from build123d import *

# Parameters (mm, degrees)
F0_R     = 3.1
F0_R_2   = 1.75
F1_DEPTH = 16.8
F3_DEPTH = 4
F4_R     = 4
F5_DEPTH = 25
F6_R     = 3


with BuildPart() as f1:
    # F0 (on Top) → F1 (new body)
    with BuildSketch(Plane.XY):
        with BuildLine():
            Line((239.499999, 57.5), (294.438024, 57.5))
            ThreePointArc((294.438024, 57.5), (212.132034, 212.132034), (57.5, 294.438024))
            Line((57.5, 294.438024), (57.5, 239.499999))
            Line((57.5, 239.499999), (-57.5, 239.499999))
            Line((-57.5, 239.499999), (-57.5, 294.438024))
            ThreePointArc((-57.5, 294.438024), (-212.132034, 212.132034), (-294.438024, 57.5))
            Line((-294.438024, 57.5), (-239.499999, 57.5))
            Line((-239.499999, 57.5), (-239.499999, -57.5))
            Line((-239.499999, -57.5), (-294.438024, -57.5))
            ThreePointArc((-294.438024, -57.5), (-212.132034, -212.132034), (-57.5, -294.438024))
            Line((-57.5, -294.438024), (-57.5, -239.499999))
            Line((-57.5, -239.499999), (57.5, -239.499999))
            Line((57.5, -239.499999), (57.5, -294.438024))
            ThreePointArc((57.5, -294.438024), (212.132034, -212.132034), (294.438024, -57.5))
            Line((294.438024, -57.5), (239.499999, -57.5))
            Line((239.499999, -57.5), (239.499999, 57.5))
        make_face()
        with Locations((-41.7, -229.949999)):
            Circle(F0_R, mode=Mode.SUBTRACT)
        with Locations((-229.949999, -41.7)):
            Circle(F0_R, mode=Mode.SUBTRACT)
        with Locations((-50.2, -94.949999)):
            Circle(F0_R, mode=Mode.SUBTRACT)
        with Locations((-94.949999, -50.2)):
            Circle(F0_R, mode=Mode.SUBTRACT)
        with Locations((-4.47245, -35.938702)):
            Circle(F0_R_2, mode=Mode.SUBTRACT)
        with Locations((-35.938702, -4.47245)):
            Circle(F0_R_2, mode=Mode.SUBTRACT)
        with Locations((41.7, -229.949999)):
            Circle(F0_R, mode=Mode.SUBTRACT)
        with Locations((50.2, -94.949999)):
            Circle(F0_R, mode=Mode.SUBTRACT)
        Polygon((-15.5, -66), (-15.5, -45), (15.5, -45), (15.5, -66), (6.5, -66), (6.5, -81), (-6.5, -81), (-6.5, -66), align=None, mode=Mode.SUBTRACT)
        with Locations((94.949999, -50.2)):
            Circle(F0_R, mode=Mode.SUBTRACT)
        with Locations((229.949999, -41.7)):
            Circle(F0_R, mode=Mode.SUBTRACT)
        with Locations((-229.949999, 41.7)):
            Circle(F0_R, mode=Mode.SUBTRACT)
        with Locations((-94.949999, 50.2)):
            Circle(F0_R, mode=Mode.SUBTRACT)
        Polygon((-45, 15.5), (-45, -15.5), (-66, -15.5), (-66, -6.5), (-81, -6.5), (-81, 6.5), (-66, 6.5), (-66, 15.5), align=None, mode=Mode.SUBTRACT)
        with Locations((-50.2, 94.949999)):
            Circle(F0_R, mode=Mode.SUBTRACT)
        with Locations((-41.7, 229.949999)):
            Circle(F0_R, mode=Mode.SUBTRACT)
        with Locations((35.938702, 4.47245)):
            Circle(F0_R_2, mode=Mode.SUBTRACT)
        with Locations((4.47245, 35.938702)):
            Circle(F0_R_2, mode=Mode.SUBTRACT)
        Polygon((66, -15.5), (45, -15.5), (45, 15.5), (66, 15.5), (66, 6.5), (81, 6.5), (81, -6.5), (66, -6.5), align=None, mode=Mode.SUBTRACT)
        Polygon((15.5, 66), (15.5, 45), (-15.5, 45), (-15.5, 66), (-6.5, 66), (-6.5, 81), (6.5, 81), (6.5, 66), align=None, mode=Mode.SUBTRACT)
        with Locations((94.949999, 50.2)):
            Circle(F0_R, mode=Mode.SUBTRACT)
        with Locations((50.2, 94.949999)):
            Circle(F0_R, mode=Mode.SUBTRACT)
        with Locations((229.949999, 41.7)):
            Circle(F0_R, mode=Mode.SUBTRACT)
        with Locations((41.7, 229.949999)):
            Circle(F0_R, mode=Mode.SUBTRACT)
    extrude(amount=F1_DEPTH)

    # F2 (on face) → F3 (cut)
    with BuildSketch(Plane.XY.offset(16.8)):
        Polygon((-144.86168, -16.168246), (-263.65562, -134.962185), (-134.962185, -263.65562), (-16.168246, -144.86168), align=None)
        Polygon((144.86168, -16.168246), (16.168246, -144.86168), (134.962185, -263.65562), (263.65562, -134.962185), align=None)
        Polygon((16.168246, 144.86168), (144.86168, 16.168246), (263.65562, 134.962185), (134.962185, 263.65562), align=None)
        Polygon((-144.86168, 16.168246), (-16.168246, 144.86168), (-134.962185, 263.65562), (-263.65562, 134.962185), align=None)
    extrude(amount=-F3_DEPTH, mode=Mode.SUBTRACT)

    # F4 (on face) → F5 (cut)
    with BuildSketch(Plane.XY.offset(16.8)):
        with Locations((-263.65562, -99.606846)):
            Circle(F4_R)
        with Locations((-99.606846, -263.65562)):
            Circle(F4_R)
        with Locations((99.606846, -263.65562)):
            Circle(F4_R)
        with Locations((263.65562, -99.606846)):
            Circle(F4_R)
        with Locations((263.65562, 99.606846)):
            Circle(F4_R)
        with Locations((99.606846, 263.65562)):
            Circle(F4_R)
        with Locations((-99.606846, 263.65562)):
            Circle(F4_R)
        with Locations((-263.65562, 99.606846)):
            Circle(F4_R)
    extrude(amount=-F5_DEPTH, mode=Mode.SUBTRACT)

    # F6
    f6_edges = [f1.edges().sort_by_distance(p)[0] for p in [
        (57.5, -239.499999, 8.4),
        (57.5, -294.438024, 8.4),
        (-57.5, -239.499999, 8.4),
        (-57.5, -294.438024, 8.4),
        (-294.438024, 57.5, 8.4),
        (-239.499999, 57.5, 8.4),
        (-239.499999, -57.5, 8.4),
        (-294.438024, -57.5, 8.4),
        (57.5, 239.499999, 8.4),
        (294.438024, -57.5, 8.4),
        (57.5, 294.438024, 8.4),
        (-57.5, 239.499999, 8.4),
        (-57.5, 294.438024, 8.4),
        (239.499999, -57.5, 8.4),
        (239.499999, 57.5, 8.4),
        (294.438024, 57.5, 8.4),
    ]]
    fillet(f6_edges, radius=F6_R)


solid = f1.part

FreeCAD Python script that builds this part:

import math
import FreeCAD as App
import Part
import Sketcher

V = App.Vector


def edges_at(feature, points):
    """Names of the edges that pass closest to the given points."""
    edges = feature.Shape.Edges
    near = lambda p: min(range(len(edges)), key=lambda i: edges[i].distToShape(Part.Vertex(*p))[0])
    return sorted({f"Edge{near(p) + 1}" for p in points})


def add_polygon(sketch, points):
    """Adds a closed chain of lines whose ends are joined by coincident constraints."""
    first, n = sketch.GeometryCount, len(points)
    for a, b in zip(points, points[1:] + points[:1]):
        sketch.addGeometry(Part.LineSegment(App.Vector(*a, 0), App.Vector(*b, 0)), False)
    for i in range(n):
        sketch.addConstraint(Sketcher.Constraint("Coincident", first + i, 2, first + (i + 1) % n, 1))

doc = App.newDocument("Part")
params = doc.addObject("Spreadsheet::Sheet", "Params")
for row, (alias, value) in enumerate([
    ("sketch1_diameter", "6.2 mm"),
    ("sketch1_diameter2", "3.5 mm"),
    ("sketch1_width", "115 mm"),
    ("sketch1_width2", "9 mm"),
    ("sketch1_width3", "31 mm"),
    ("pad1_length", "16.8 mm"),
    ("sketch2_length", "168 mm"),
    ("sketch2_length2", "182.000001 mm"),
    ("pocket1_length", "4 mm"),
    ("sketch3_diameter", "8 mm"),
    ("pocket2_length", "25 mm"),
    ("fillet_radius", "3 mm"),
], start=1):
    params.set(f"A{row}", alias)
    params.set(f"B{row}", "=" + value)
    params.setAlias(f"B{row}", alias)

body = doc.addObject("PartDesign::Body", "Body")

# Sketch on XY plane
sketch1 = body.newObject("Sketcher::SketchObject", "Sketch")
sketch1.AttachmentSupport = (doc.getObject("XY_Plane"), [""])
sketch1.MapMode = "FlatFace"
sketch1.addGeometry(Part.LineSegment(V(239.499999, 57.5, 0), V(294.438024, 57.5, 0)), False)  # 0
sketch1.addGeometry(Part.ArcOfCircle(Part.Circle(V(-0.000002, -0.000002, 0), V(0, 0, 1), 300.000002), math.radians(11.050065), math.radians(78.949935)), False)  # 1
sketch1.addGeometry(Part.LineSegment(V(57.5, 294.438024, 0), V(57.5, 239.499999, 0)), False)  # 2
sketch1.addGeometry(Part.LineSegment(V(57.5, 239.499999, 0), V(-57.5, 239.499999, 0)), False)  # 3
sketch1.addGeometry(Part.LineSegment(V(-57.5, 239.499999, 0), V(-57.5, 294.438024, 0)), False)  # 4
sketch1.addGeometry(Part.ArcOfCircle(Part.Circle(V(0.000002, -0.000002, 0), V(0, 0, 1), 300.000002), math.radians(101.050065), math.radians(168.949935)), False)  # 5
sketch1.addGeometry(Part.LineSegment(V(-294.438024, 57.5, 0), V(-239.499999, 57.5, 0)), False)  # 6
sketch1.addGeometry(Part.LineSegment(V(-239.499999, 57.5, 0), V(-239.499999, -57.5, 0)), False)  # 7
sketch1.addGeometry(Part.LineSegment(V(-239.499999, -57.5, 0), V(-294.438024, -57.5, 0)), False)  # 8
sketch1.addGeometry(Part.ArcOfCircle(Part.Circle(V(0.000002, 0.000002, 0), V(0, 0, 1), 300.000002), math.radians(-168.949935), math.radians(-101.050065)), False)  # 9
sketch1.addGeometry(Part.LineSegment(V(-57.5, -294.438024, 0), V(-57.5, -239.499999, 0)), False)  # 10
sketch1.addGeometry(Part.LineSegment(V(-57.5, -239.499999, 0), V(57.5, -239.499999, 0)), False)  # 11
sketch1.addGeometry(Part.LineSegment(V(57.5, -239.499999, 0), V(57.5, -294.438024, 0)), False)  # 12
sketch1.addGeometry(Part.ArcOfCircle(Part.Circle(V(-0.000002, 0.000002, 0), V(0, 0, 1), 300.000002), math.radians(-78.949935), math.radians(-11.050065)), False)  # 13
sketch1.addGeometry(Part.LineSegment(V(294.438024, -57.5, 0), V(239.499999, -57.5, 0)), False)  # 14
sketch1.addGeometry(Part.LineSegment(V(239.499999, -57.5, 0), V(239.499999, 57.5, 0)), False)  # 15
sketch1.addGeometry(Part.Circle(V(-41.7, -229.949999, 0), V(0, 0, 1), 3.1), False)  # 16
sketch1.addGeometry(Part.Circle(V(-229.949999, -41.7, 0), V(0, 0, 1), 3.1), False)  # 17
sketch1.addGeometry(Part.Circle(V(-50.2, -94.949999, 0), V(0, 0, 1), 3.1), False)  # 18
sketch1.addGeometry(Part.Circle(V(-94.949999, -50.2, 0), V(0, 0, 1), 3.1), False)  # 19
sketch1.addGeometry(Part.Circle(V(-4.47245, -35.938702, 0), V(0, 0, 1), 1.75), False)  # 20
sketch1.addGeometry(Part.Circle(V(-35.938702, -4.47245, 0), V(0, 0, 1), 1.75), False)  # 21
sketch1.addGeometry(Part.Circle(V(41.7, -229.949999, 0), V(0, 0, 1), 3.1), False)  # 22
sketch1.addGeometry(Part.Circle(V(50.2, -94.949999, 0), V(0, 0, 1), 3.1), False)  # 23
add_polygon(sketch1, [(-6.5, -66), (-15.5, -66), (-15.5, -45), (15.5, -45), (15.5, -66), (6.5, -66), (6.5, -81), (-6.5, -81)])  # lines 24-31
sketch1.addGeometry(Part.Circle(V(94.949999, -50.2, 0), V(0, 0, 1), 3.1), False)  # 32
sketch1.addGeometry(Part.Circle(V(229.949999, -41.7, 0), V(0, 0, 1), 3.1), False)  # 33
sketch1.addGeometry(Part.Circle(V(-229.949999, 41.7, 0), V(0, 0, 1), 3.1), False)  # 34
add_polygon(sketch1, [(-66, 15.5), (-45, 15.5), (-45, -15.5), (-66, -15.5), (-66, -6.5), (-81, -6.5), (-81, 6.5), (-66, 6.5)])  # lines 35-42
sketch1.addGeometry(Part.Circle(V(-94.949999, 50.2, 0), V(0, 0, 1), 3.1), False)  # 43
sketch1.addGeometry(Part.Circle(V(-50.2, 94.949999, 0), V(0, 0, 1), 3.1), False)  # 44
sketch1.addGeometry(Part.Circle(V(-41.7, 229.949999, 0), V(0, 0, 1), 3.1), False)  # 45
sketch1.addGeometry(Part.Circle(V(35.938702, 4.47245, 0), V(0, 0, 1), 1.75), False)  # 46
sketch1.addGeometry(Part.Circle(V(4.47245, 35.938702, 0), V(0, 0, 1), 1.75), False)  # 47
add_polygon(sketch1, [(66, -6.5), (66, -15.5), (45, -15.5), (45, 15.5), (66, 15.5), (66, 6.5), (81, 6.5), (81, -6.5)])  # lines 48-55
sketch1.addGeometry(Part.Circle(V(94.949999, 50.2, 0), V(0, 0, 1), 3.1), False)  # 56
add_polygon(sketch1, [(6.5, 66), (15.5, 66), (15.5, 45), (-15.5, 45), (-15.5, 66), (-6.5, 66), (-6.5, 81), (6.5, 81)])  # lines 57-64
sketch1.addGeometry(Part.Circle(V(50.2, 94.949999, 0), V(0, 0, 1), 3.1), False)  # 65
sketch1.addGeometry(Part.Circle(V(229.949999, 41.7, 0), V(0, 0, 1), 3.1), False)  # 66
sketch1.addGeometry(Part.Circle(V(41.7, 229.949999, 0), V(0, 0, 1), 3.1), False)  # 67
sketch1.addConstraint([
    Sketcher.Constraint("Coincident", 0, 2, 1, 1),
    Sketcher.Constraint("Coincident", 1, 2, 2, 1),
    Sketcher.Constraint("Coincident", 2, 2, 3, 1),
    Sketcher.Constraint("Coincident", 3, 2, 4, 1),
    Sketcher.Constraint("Coincident", 4, 2, 5, 1),
    Sketcher.Constraint("Coincident", 5, 2, 6, 1),
    Sketcher.Constraint("Coincident", 6, 2, 7, 1),
    Sketcher.Constraint("Coincident", 7, 2, 8, 1),
    Sketcher.Constraint("Coincident", 8, 2, 9, 1),
    Sketcher.Constraint("Coincident", 9, 2, 10, 1),
    Sketcher.Constraint("Coincident", 10, 2, 11, 1),
    Sketcher.Constraint("Coincident", 11, 2, 12, 1),
    Sketcher.Constraint("Coincident", 12, 2, 13, 1),
    Sketcher.Constraint("Coincident", 13, 2, 14, 1),
    Sketcher.Constraint("Coincident", 14, 2, 15, 1),
    Sketcher.Constraint("Coincident", 15, 2, 0, 1),
    Sketcher.Constraint("Horizontal", 0),
    Sketcher.Constraint("Vertical", 2),
    Sketcher.Constraint("Horizontal", 3),
    Sketcher.Constraint("Vertical", 4),
    Sketcher.Constraint("Horizontal", 6),
    Sketcher.Constraint("Vertical", 7),
    Sketcher.Constraint("Horizontal", 8),
    Sketcher.Constraint("Vertical", 10),
    Sketcher.Constraint("Horizontal", 11),
    Sketcher.Constraint("Vertical", 12),
    Sketcher.Constraint("Horizontal", 14),
    Sketcher.Constraint("Vertical", 15),
    Sketcher.Constraint("Horizontal", 24),
    Sketcher.Constraint("Vertical", 25),
    Sketcher.Constraint("Horizontal", 26),
    Sketcher.Constraint("Vertical", 27),
    Sketcher.Constraint("Horizontal", 28),
    Sketcher.Constraint("Vertical", 29),
    Sketcher.Constraint("Horizontal", 30),
    Sketcher.Constraint("Vertical", 31),
    Sketcher.Constraint("Horizontal", 35),
    Sketcher.Constraint("Vertical", 36),
    Sketcher.Constraint("Horizontal", 37),
    Sketcher.Constraint("Vertical", 38),
    Sketcher.Constraint("Horizontal", 39),
    Sketcher.Constraint("Vertical", 40),
    Sketcher.Constraint("Horizontal", 41),
    Sketcher.Constraint("Vertical", 42),
    Sketcher.Constraint("Vertical", 48),
    Sketcher.Constraint("Horizontal", 49),
    Sketcher.Constraint("Vertical", 50),
    Sketcher.Constraint("Horizontal", 51),
    Sketcher.Constraint("Vertical", 52),
    Sketcher.Constraint("Horizontal", 53),
    Sketcher.Constraint("Vertical", 54),
    Sketcher.Constraint("Horizontal", 55),
    Sketcher.Constraint("Horizontal", 57),
    Sketcher.Constraint("Vertical", 58),
    Sketcher.Constraint("Horizontal", 59),
    Sketcher.Constraint("Vertical", 60),
    Sketcher.Constraint("Horizontal", 61),
    Sketcher.Constraint("Vertical", 62),
    Sketcher.Constraint("Horizontal", 63),
    Sketcher.Constraint("Vertical", 64),
    Sketcher.Constraint("Coincident", 1, 3, -1, 1),
    Sketcher.Constraint("Coincident", 5, 3, -1, 1),
    Sketcher.Constraint("Coincident", 9, 3, -1, 1),
    Sketcher.Constraint("Coincident", 13, 3, -1, 1),
    Sketcher.Constraint("Equal", 1, 5),
    Sketcher.Constraint("Equal", 5, 9),
    Sketcher.Constraint("Equal", 9, 13),
    Sketcher.Constraint("Equal", 16, 17),
    Sketcher.Constraint("Equal", 17, 18),
    Sketcher.Constraint("Equal", 18, 19),
    Sketcher.Constraint("Equal", 20, 21),
    Sketcher.Constraint("Equal", 19, 22),
    Sketcher.Constraint("Equal", 22, 23),
    Sketcher.Constraint("Equal", 23, 32),
    Sketcher.Constraint("Equal", 32, 33),
    Sketcher.Constraint("Equal", 33, 34),
    Sketcher.Constraint("Equal", 34, 43),
    Sketcher.Constraint("Equal", 43, 44),
    Sketcher.Constraint("Equal", 44, 45),
    Sketcher.Constraint("Equal", 21, 46),
    Sketcher.Constraint("Equal", 46, 47),
    Sketcher.Constraint("Equal", 45, 56),
    Sketcher.Constraint("Equal", 56, 65),
    Sketcher.Constraint("Equal", 65, 66),
    Sketcher.Constraint("Equal", 66, 67),
    Sketcher.Constraint("Symmetric", 33, 3, 34, 3, -1, 1),
    Sketcher.Constraint("Symmetric", 32, 3, 43, 3, -1, 1),
    Sketcher.Constraint("Symmetric", 23, 3, 44, 3, -1, 1),
    Sketcher.Constraint("Symmetric", 22, 3, 45, 3, -1, 1),
    Sketcher.Constraint("Symmetric", 21, 3, 46, 3, -1, 1),
    Sketcher.Constraint("Symmetric", 20, 3, 47, 3, -1, 1),
    Sketcher.Constraint("Symmetric", 19, 3, 56, 3, -1, 1),
    Sketcher.Constraint("Symmetric", 18, 3, 65, 3, -1, 1),
    Sketcher.Constraint("Symmetric", 17, 3, 66, 3, -1, 1),
    Sketcher.Constraint("Symmetric", 16, 3, 67, 3, -1, 1),
    Sketcher.Constraint("Symmetric", 2, 2, 10, 2, -1, 1),
    Sketcher.Constraint("Symmetric", 6, 2, 14, 2, -1, 1),
    Sketcher.Constraint("Symmetric", 42, 2, 48, 2, -1, 1),
    Sketcher.Constraint("Symmetric", 36, 2, 50, 2, -1, 1),
    Sketcher.Constraint("Symmetric", 38, 2, 52, 2, -1, 1),
    Sketcher.Constraint("Symmetric", 40, 2, 54, 2, -1, 1),
    Sketcher.Constraint("Symmetric", 24, 2, 57, 2, -1, 1),
    Sketcher.Constraint("Symmetric", 26, 2, 59, 2, -1, 1),
    Sketcher.Constraint("Symmetric", 28, 2, 61, 2, -1, 1),
    Sketcher.Constraint("Symmetric", 30, 2, 63, 2, -1, 1),
    Sketcher.Constraint("Symmetric", 16, 3, 22, 3, -2),
    Sketcher.Constraint("Symmetric", 18, 3, 23, 3, -2),
    Sketcher.Constraint("Symmetric", 19, 3, 32, 3, -2),
    Sketcher.Constraint("Symmetric", 17, 3, 33, 3, -2),
    Sketcher.Constraint("Symmetric", 24, 2, 27, 2, -2),
    Sketcher.Constraint("Symmetric", 37, 2, 48, 2, -2),
    Sketcher.Constraint("Horizontal", 1, 2, 4, 2),
    Sketcher.Constraint("Horizontal", 0, 2, 5, 2),
    Sketcher.Constraint("Horizontal", 9, 2, 12, 2),
    Sketcher.Constraint("Horizontal", 8, 2, 13, 2),
    Sketcher.Constraint("Horizontal", 41, 2, 52, 2),
    Sketcher.Constraint("Vertical", 31, 2, 61, 2),
    Sketcher.Constraint("Equal", 14, 2),
    Sketcher.Constraint("Equal", 11, 7),
    Sketcher.Constraint("Equal", 51, 25),
    Sketcher.Constraint("Equal", 55, 29),
    Sketcher.Constraint("Equal", 59, 36),
    Sketcher.Constraint("Equal", 61, 38),
    Sketcher.Constraint("Diameter", 16, 6.2),
    Sketcher.Constraint("Diameter", 20, 3.5),
    Sketcher.Constraint("DistanceX", 3, 2, 3, 1, 115.0),
    Sketcher.Constraint("DistanceX", 24, 2, 24, 1, 9.0),
    Sketcher.Constraint("DistanceX", 26, 1, 26, 2, 31.0),
    Sketcher.Constraint("DistanceX", 35, 1, 35, 2, 21.0),
    Sketcher.Constraint("DistanceX", 39, 2, 39, 1, 15.0),
    Sketcher.Constraint("DistanceY", 24, 2, -1, 1, 66.0),
    Sketcher.Constraint("DistanceX", 35, 2, -1, 1, 45.0),
    Sketcher.Constraint("DistanceX", 16, 3, -1, 1, 41.7),
    Sketcher.Constraint("DistanceY", 17, 3, -1, 1, 41.7),
    Sketcher.Constraint("DistanceX", 18, 3, -1, 1, 50.2),
    Sketcher.Constraint("DistanceY", 19, 3, -1, 1, 50.2),
    Sketcher.Constraint("DistanceY", -1, 1, 2, 2, 239.499999),
    Sketcher.Constraint("DistanceY", 16, 3, -1, 1, 229.949999),
    Sketcher.Constraint("DistanceX", 17, 3, -1, 1, 229.949999),
    Sketcher.Constraint("DistanceY", 18, 3, -1, 1, 94.949999),
    Sketcher.Constraint("DistanceX", 19, 3, -1, 1, 94.949999),
    Sketcher.Constraint("Radius", 1, 300.000002),
    Sketcher.Constraint("DistanceX", 20, 3, -1, 1, 4.47245),
    Sketcher.Constraint("DistanceY", 21, 3, -1, 1, 4.47245),
    Sketcher.Constraint("DistanceY", 20, 3, -1, 1, 35.938702),
    Sketcher.Constraint("DistanceX", 21, 3, -1, 1, 35.938702),
])
sketch1.setExpression("Constraints[155]", "Params.sketch1_diameter")
sketch1.setExpression("Constraints[156]", "Params.sketch1_diameter2")
sketch1.setExpression("Constraints[157]", "Params.sketch1_width")
sketch1.setExpression("Constraints[158]", "Params.sketch1_width2")
sketch1.setExpression("Constraints[159]", "Params.sketch1_width3")
pad1 = body.newObject("PartDesign::Pad", "Pad")
pad1.Profile = sketch1
pad1.setExpression("Length", "Params.pad1_length")

# Sketch on XY plane
sketch2 = body.newObject("Sketcher::SketchObject", "Sketch001")
sketch2.AttachmentSupport = (doc.getObject("XY_Plane"), [""])
sketch2.MapMode = "FlatFace"
sketch2.AttachmentOffset = App.Placement(V(0, 0, 16.8), App.Rotation())
add_polygon(sketch2, [(-144.86168, -16.168246), (-263.65562, -134.962185), (-134.962185, -263.65562), (-16.168246, -144.86168)])  # lines 0-3
add_polygon(sketch2, [(144.86168, -16.168246), (16.168246, -144.86168), (134.962185, -263.65562), (263.65562, -134.962185)])  # lines 4-7
add_polygon(sketch2, [(16.168246, 144.86168), (144.86168, 16.168246), (263.65562, 134.962185), (134.962185, 263.65562)])  # lines 8-11
add_polygon(sketch2, [(-144.86168, 16.168246), (-16.168246, 144.86168), (-134.962185, 263.65562), (-263.65562, 134.962185)])  # lines 12-15
sketch2.addConstraint([
    Sketcher.Constraint("Symmetric", 3, 2, 8, 2, -1, 1),
    Sketcher.Constraint("Symmetric", 0, 2, 9, 2, -1, 1),
    Sketcher.Constraint("Symmetric", 1, 2, 10, 2, -1, 1),
    Sketcher.Constraint("Symmetric", 2, 2, 11, 2, -1, 1),
    Sketcher.Constraint("Symmetric", 4, 2, 12, 2, -1, 1),
    Sketcher.Constraint("Symmetric", 5, 2, 13, 2, -1, 1),
    Sketcher.Constraint("Symmetric", 6, 2, 14, 2, -1, 1),
    Sketcher.Constraint("Symmetric", 7, 2, 15, 2, -1, 1),
    Sketcher.Constraint("Symmetric", 2, 2, 4, 2, -2),
    Sketcher.Constraint("Symmetric", 1, 2, 5, 2, -2),
    Sketcher.Constraint("Symmetric", 0, 2, 6, 2, -2),
    Sketcher.Constraint("Symmetric", 3, 2, 7, 2, -2),
    Sketcher.Constraint("Perpendicular", 0, 1),
    Sketcher.Constraint("Perpendicular", 1, 2),
    Sketcher.Constraint("Perpendicular", 2, 3),
    Sketcher.Constraint("Perpendicular", 3, 4),
    Sketcher.Constraint("Distance", 0, 168.0),
    Sketcher.Constraint("Distance", 1, 182.000001),
    Sketcher.Constraint("DistanceX", 3, 2, 6, 2, 408.5173),
    Sketcher.Constraint("DistanceY", 1, 2, -1, 1, 263.65562),
])
sketch2.setExpression("Constraints[32]", "Params.sketch2_length")
sketch2.setExpression("Constraints[33]", "Params.sketch2_length2")
pocket1 = body.newObject("PartDesign::Pocket", "Pocket")
pocket1.Profile = sketch2
pocket1.setExpression("Length", "Params.pocket1_length")

# Sketch on XY plane
sketch3 = body.newObject("Sketcher::SketchObject", "Sketch002")
sketch3.AttachmentSupport = (doc.getObject("XY_Plane"), [""])
sketch3.MapMode = "FlatFace"
sketch3.AttachmentOffset = App.Placement(V(0, 0, 16.8), App.Rotation())
sketch3.addGeometry([
    Part.Circle(V(-263.65562, -99.606846, 0), V(0, 0, 1), 4),  # 0
    Part.Circle(V(-99.606846, -263.65562, 0), V(0, 0, 1), 4),  # 1
    Part.Circle(V(99.606846, -263.65562, 0), V(0, 0, 1), 4),  # 2
    Part.Circle(V(263.65562, -99.606846, 0), V(0, 0, 1), 4),  # 3
    Part.Circle(V(263.65562, 99.606846, 0), V(0, 0, 1), 4),  # 4
    Part.Circle(V(99.606846, 263.65562, 0), V(0, 0, 1), 4),  # 5
    Part.Circle(V(-99.606846, 263.65562, 0), V(0, 0, 1), 4),  # 6
    Part.Circle(V(-263.65562, 99.606846, 0), V(0, 0, 1), 4),  # 7
], False)
sketch3.addConstraint([
    Sketcher.Constraint("Equal", 0, 1),
    Sketcher.Constraint("Equal", 1, 2),
    Sketcher.Constraint("Equal", 2, 3),
    Sketcher.Constraint("Equal", 3, 4),
    Sketcher.Constraint("Equal", 4, 5),
    Sketcher.Constraint("Equal", 5, 6),
    Sketcher.Constraint("Equal", 6, 7),
    Sketcher.Constraint("Symmetric", 0, 3, 4, 3, -1, 1),
    Sketcher.Constraint("Symmetric", 1, 3, 5, 3, -1, 1),
    Sketcher.Constraint("Symmetric", 2, 3, 6, 3, -1, 1),
    Sketcher.Constraint("Symmetric", 3, 3, 7, 3, -1, 1),
    Sketcher.Constraint("Symmetric", 1, 3, 2, 3, -2),
    Sketcher.Constraint("Symmetric", 0, 3, 3, 3, -2),
    Sketcher.Constraint("Diameter", 0, 8.0),
    Sketcher.Constraint("DistanceX", 0, 3, -1, 1, 263.65562),
    Sketcher.Constraint("DistanceY", 1, 3, -1, 1, 263.65562),
    Sketcher.Constraint("DistanceX", 1, 3, 2, 3, 199.213692),
    Sketcher.Constraint("DistanceY", 3, 3, 4, 3, 199.213692),
])
sketch3.setExpression("Constraints[13]", "Params.sketch3_diameter")
pocket2 = body.newObject("PartDesign::Pocket", "Pocket001")
pocket2.Profile = sketch3
pocket2.setExpression("Length", "Params.pocket2_length")
doc.recompute()

fillet = body.newObject("PartDesign::Fillet", "Fillet")
fillet.Base = (pocket2, edges_at(pocket2, [
    (57.5, -239.5, 8.4),
    (57.5, -294.438, 8.4),
    (-57.5, -239.5, 8.4),
    (-57.5, -294.438, 8.4),
    (-294.438, 57.5, 8.4),
    (-239.5, 57.5, 8.4),
    (-239.5, -57.5, 8.4),
    (-294.438, -57.5, 8.4),
    (57.5, 239.5, 8.4),
    (294.438, -57.5, 8.4),
    (57.5, 294.438, 8.4),
    (-57.5, 239.5, 8.4),
    (-57.5, 294.438, 8.4),
    (239.5, -57.5, 8.4),
    (239.5, 57.5, 8.4),
    (294.438, 57.5, 8.4),
]))
fillet.setExpression("Radius", "Params.fillet_radius")

doc.recompute()
